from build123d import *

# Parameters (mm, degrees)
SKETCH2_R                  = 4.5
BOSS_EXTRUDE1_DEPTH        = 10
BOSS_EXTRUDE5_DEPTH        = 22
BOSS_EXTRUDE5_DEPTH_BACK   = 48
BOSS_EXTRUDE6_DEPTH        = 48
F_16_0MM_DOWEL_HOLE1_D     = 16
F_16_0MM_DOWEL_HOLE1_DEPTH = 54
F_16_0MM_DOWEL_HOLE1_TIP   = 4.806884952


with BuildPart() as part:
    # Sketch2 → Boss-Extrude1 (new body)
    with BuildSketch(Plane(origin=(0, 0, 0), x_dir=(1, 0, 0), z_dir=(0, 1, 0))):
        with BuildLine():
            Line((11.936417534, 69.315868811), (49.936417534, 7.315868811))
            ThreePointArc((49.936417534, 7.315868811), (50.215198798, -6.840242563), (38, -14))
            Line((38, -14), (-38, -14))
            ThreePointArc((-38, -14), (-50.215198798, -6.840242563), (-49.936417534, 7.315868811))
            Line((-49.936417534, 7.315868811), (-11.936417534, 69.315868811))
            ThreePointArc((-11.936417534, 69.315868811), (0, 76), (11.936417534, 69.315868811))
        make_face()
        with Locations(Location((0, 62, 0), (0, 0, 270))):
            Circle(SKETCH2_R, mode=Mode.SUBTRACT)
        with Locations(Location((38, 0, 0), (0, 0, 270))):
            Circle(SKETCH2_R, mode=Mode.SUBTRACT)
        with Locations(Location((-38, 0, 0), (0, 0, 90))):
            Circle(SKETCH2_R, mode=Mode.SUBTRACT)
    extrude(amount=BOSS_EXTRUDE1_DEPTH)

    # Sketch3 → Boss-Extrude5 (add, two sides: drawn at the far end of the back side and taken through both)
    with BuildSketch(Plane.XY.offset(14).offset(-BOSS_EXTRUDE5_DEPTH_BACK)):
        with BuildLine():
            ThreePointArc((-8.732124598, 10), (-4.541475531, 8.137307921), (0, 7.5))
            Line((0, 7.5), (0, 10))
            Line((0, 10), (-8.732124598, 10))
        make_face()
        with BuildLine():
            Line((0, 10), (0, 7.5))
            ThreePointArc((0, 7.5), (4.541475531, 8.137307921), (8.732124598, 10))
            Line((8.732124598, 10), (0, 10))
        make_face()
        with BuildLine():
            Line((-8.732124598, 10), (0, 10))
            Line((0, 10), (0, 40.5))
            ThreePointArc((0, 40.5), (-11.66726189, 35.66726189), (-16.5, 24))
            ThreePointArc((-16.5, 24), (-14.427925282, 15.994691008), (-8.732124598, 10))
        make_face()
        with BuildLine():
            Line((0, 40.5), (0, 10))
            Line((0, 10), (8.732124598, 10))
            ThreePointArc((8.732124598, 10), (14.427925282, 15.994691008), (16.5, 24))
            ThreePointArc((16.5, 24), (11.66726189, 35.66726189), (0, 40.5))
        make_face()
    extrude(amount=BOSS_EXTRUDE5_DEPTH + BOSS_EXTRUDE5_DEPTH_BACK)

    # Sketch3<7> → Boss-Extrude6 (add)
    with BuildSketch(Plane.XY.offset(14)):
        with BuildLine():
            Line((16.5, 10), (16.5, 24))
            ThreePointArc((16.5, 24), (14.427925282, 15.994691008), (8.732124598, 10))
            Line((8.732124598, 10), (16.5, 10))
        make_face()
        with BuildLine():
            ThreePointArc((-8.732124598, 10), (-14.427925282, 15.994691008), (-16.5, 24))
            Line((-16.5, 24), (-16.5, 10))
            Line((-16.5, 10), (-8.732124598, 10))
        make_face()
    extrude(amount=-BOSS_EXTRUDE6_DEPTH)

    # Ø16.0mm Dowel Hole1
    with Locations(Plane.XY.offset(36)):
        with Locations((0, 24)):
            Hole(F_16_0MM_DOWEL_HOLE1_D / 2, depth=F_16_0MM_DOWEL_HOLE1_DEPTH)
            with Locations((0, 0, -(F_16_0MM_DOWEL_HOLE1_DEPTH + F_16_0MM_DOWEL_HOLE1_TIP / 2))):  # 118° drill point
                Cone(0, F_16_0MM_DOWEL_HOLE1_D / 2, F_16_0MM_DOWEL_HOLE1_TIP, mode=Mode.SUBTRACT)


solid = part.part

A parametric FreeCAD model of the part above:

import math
import FreeCAD as App
import Part
import Sketcher

V = App.Vector
Q = App.Units.Quantity

doc = App.newDocument("Part")
body = doc.addObject("PartDesign::Body", "Body")

sketch1 = body.newObject("Sketcher::SketchObject", "Sketch")
sketch1.AttachmentSupport = (doc.getObject("XZ_Plane"), [""])
sketch1.MapMode = "FlatFace"
sketch1.addGeometry([
    Part.LineSegment(V(49.9, -7.3, 0), V(11.9, -69.3, 0)),
    Part.ArcOfCircle(Part.Circle(V(0, -62, 0), V(0, 0, 1), 14), math.radians(-148), math.radians(-32)),
    Part.LineSegment(V(-11.9, -69.3, 0), V(-49.9, -7.3, 0)),
    Part.ArcOfCircle(Part.Circle(V(-38, 0, 0), V(0, 0, 1), 14), math.radians(90), math.radians(212)),
    Part.LineSegment(V(-38, 14, 0), V(38, 14, 0)),
    Part.ArcOfCircle(Part.Circle(V(38, 0, 0), V(0, 0, 1), 14), math.radians(-32), math.radians(90)),
    Part.Circle(V(38, 0, 0), V(0, 0, 1), 4.5),
    Part.Circle(V(-38, 0, 0), V(0, 0, 1), 4.5),
    Part.Circle(V(0, -62, 0), V(0, 0, 1), 4.5),
], False)
sketch1.addConstraint([
    Sketcher.Constraint("Tangent", 0, 2, 1, 2),
    Sketcher.Constraint("Tangent", 1, 1, 2, 1),
    Sketcher.Constraint("Tangent", 2, 2, 3, 2),
    Sketcher.Constraint("Tangent", 3, 1, 4, 1),
    Sketcher.Constraint("Tangent", 4, 2, 5, 2),
    Sketcher.Constraint("Tangent", 5, 1, 0, 1),
    Sketcher.Constraint("Horizontal", 4),
    Sketcher.Constraint("Coincident", 6, 3, 5, 3),
    Sketcher.Constraint("Coincident", 7, 3, 3, 3),
    Sketcher.Constraint("Coincident", 8, 3, 1, 3),
    Sketcher.Constraint("Equal", 1, 3),
    Sketcher.Constraint("Equal", 3, 5),
    Sketcher.Constraint("Equal", 6, 7),
    Sketcher.Constraint("Equal", 7, 8),
    Sketcher.Constraint("Symmetric", 3, 3, 5, 3, -1, 1),
    Sketcher.Constraint("PointOnObject", 1, 3, -2),
    Sketcher.Constraint("Diameter", 6, Q("9 mm")),
    Sketcher.Constraint("Radius", 1, Q("14 mm")),
    Sketcher.Constraint("DistanceX", 4, 1, 4, 2, Q("76 mm")),
    Sketcher.Constraint("DistanceY", 1, 3, -1, 1, Q("62 mm")),
])
pad1 = body.newObject("PartDesign::Pad", "Pad")
pad1.Profile = sketch1
pad1.Length = 10
pad1.Reversed = True

sketch2 = body.newObject("Sketcher::SketchObject", "Sketch001")
sketch2.AttachmentSupport = (doc.getObject("XY_Plane"), [""])
sketch2.MapMode = "FlatFace"
sketch2.AttachmentOffset = App.Placement(V(0, 0, 14), App.Rotation())
sketch2.addGeometry([
    Part.ArcOfCircle(Part.Circle(V(0, 24, 0), V(0, 0, 1), 17), math.radians(-122), math.radians(-90)),
    Part.ArcOfCircle(Part.Circle(V(0, 24, 0), V(0, 0, 1), 17), math.radians(-90), math.radians(-58)),
    Part.ArcOfCircle(Part.Circle(V(0, 24, 0), V(0, 0, 1), 16), math.radians(-58), math.radians(0)),
    Part.ArcOfCircle(Part.Circle(V(0, 24, 0), V(0, 0, 1), 16), math.radians(0), math.radians(90)),
    Part.ArcOfCircle(Part.Circle(V(0, 24, 0), V(0, 0, 1), 16), math.radians(90), math.radians(180)),
    Part.ArcOfCircle(Part.Circle(V(0, 24, 0), V(0, 0, 1), 16), math.radians(180), math.radians(238)),
], False)
sketch2.addConstraint([
    Sketcher.Constraint("Tangent", 0, 2, 1, 1),
    Sketcher.Constraint("Tangent", 1, 2, 2, 1),
    Sketcher.Constraint("Tangent", 2, 2, 3, 1),
    Sketcher.Constraint("Tangent", 3, 2, 4, 1),
    Sketcher.Constraint("Tangent", 4, 2, 5, 1),
    Sketcher.Constraint("Tangent", 5, 2, 0, 1),
    Sketcher.Constraint("Coincident", 2, 3, 0, 3),
    Sketcher.Constraint("Equal", 2, 3),
    Sketcher.Constraint("Symmetric", 2, 2, 4, 2, -2),
    Sketcher.Constraint("PointOnObject", 0, 2, -2),
    Sketcher.Constraint("PointOnObject", 3, 2, -2),
    Sketcher.Constraint("Horizontal", 5, 3, 2, 2),
    Sketcher.Constraint("Horizontal", 1, 2, 5, 2),
    Sketcher.Constraint("Radius", 0, Q("16.5 mm")),
    Sketcher.Constraint("DistanceY", -1, 1, 0, 3, Q("24 mm")),
    Sketcher.Constraint("DistanceY", -1, 1, 1, 2, Q("10 mm")),
])
pad2 = body.newObject("PartDesign::Pad", "Pad001")
pad2.Profile = sketch2
pad2.Type = "TwoLengths"
pad2.Length = 22
pad2.Length2 = 48

sketch3 = body.newObject("Sketcher::SketchObject", "Sketch002")
sketch3.AttachmentSupport = (doc.getObject("XY_Plane"), [""])
sketch3.MapMode = "FlatFace"
sketch3.AttachmentOffset = App.Placement(V(0, 0, 14), App.Rotation())
sketch3.addGeometry([
    Part.LineSegment(V(16, 10, 0), V(16, 24, 0)),
    Part.ArcOfCircle(Part.Circle(V(0, 24, 0), V(0, 0, 1), 16), math.radians(-58), math.radians(0)),
    Part.LineSegment(V(9, 10, 0), V(16, 10, 0)),
    Part.ArcOfCircle(Part.Circle(V(0, 24, 0), V(0, 0, 1), 16), math.radians(180), math.radians(238)),
    Part.LineSegment(V(-16, 24, 0), V(-16, 10, 0)),
    Part.LineSegment(V(-16, 10, 0), V(-9, 10, 0)),
], False)
sketch3.addConstraint([
    Sketcher.Constraint("Tangent", 0, 2, 1, 2),
    Sketcher.Constraint("Coincident", 1, 1, 2, 1),
    Sketcher.Constraint("Coincident", 2, 2, 0, 1),
    Sketcher.Constraint("Tangent", 3, 1, 4, 1),
    Sketcher.Constraint("Coincident", 4, 2, 5, 1),
    Sketcher.Constraint("Coincident", 5, 2, 3, 2),
    Sketcher.Constraint("Vertical", 0),
    Sketcher.Constraint("Horizontal", 2),
    Sketcher.Constraint("Vertical", 4),
    Sketcher.Constraint("Horizontal", 5),
    Sketcher.Constraint("Coincident", 3, 3, 1, 3),
    Sketcher.Constraint("Equal", 1, 3),
    Sketcher.Constraint("Symmetric", 2, 2, 4, 2, -2),
    Sketcher.Constraint("Radius", 1, Q("16.5 mm")),
    Sketcher.Constraint("DistanceY", 0, 1, 0, 2, Q("14 mm")),
    Sketcher.Constraint("DistanceY", -1, 1, 1, 3, Q("24 mm")),
])
pad3 = body.newObject("PartDesign::Pad", "Pad002")
pad3.Profile = sketch3
pad3.Length = 48
pad3.Reversed = True

sketch4 = body.newObject("Sketcher::SketchObject", "Sketch003")
sketch4.AttachmentSupport = (doc.getObject("XY_Plane"), [""])
sketch4.MapMode = "FlatFace"
sketch4.AttachmentOffset = App.Placement(V(0, 0, 36), App.Rotation())
sketch4.addGeometry(Part.Circle(V(0, 24, 0), V(0, 0, 1), 8), False)
sketch4.addConstraint([
    Sketcher.Constraint("PointOnObject", 0, 3, -2),
    Sketcher.Constraint("Diameter", 0, Q("16 mm")),
    Sketcher.Constraint("DistanceY", -1, 1, 0, 3, Q("24 mm")),
])
doc.recompute()
hole = body.newObject("PartDesign::Hole", "Hole")
hole.Profile = sketch4
hole.ThreadType = "None"
hole.Diameter = 16
hole.DepthType = "Dimension"
hole.Depth = 54
hole.DrillPoint = "Angled"
hole.DrillPointAngle = 118

doc.recompute()
